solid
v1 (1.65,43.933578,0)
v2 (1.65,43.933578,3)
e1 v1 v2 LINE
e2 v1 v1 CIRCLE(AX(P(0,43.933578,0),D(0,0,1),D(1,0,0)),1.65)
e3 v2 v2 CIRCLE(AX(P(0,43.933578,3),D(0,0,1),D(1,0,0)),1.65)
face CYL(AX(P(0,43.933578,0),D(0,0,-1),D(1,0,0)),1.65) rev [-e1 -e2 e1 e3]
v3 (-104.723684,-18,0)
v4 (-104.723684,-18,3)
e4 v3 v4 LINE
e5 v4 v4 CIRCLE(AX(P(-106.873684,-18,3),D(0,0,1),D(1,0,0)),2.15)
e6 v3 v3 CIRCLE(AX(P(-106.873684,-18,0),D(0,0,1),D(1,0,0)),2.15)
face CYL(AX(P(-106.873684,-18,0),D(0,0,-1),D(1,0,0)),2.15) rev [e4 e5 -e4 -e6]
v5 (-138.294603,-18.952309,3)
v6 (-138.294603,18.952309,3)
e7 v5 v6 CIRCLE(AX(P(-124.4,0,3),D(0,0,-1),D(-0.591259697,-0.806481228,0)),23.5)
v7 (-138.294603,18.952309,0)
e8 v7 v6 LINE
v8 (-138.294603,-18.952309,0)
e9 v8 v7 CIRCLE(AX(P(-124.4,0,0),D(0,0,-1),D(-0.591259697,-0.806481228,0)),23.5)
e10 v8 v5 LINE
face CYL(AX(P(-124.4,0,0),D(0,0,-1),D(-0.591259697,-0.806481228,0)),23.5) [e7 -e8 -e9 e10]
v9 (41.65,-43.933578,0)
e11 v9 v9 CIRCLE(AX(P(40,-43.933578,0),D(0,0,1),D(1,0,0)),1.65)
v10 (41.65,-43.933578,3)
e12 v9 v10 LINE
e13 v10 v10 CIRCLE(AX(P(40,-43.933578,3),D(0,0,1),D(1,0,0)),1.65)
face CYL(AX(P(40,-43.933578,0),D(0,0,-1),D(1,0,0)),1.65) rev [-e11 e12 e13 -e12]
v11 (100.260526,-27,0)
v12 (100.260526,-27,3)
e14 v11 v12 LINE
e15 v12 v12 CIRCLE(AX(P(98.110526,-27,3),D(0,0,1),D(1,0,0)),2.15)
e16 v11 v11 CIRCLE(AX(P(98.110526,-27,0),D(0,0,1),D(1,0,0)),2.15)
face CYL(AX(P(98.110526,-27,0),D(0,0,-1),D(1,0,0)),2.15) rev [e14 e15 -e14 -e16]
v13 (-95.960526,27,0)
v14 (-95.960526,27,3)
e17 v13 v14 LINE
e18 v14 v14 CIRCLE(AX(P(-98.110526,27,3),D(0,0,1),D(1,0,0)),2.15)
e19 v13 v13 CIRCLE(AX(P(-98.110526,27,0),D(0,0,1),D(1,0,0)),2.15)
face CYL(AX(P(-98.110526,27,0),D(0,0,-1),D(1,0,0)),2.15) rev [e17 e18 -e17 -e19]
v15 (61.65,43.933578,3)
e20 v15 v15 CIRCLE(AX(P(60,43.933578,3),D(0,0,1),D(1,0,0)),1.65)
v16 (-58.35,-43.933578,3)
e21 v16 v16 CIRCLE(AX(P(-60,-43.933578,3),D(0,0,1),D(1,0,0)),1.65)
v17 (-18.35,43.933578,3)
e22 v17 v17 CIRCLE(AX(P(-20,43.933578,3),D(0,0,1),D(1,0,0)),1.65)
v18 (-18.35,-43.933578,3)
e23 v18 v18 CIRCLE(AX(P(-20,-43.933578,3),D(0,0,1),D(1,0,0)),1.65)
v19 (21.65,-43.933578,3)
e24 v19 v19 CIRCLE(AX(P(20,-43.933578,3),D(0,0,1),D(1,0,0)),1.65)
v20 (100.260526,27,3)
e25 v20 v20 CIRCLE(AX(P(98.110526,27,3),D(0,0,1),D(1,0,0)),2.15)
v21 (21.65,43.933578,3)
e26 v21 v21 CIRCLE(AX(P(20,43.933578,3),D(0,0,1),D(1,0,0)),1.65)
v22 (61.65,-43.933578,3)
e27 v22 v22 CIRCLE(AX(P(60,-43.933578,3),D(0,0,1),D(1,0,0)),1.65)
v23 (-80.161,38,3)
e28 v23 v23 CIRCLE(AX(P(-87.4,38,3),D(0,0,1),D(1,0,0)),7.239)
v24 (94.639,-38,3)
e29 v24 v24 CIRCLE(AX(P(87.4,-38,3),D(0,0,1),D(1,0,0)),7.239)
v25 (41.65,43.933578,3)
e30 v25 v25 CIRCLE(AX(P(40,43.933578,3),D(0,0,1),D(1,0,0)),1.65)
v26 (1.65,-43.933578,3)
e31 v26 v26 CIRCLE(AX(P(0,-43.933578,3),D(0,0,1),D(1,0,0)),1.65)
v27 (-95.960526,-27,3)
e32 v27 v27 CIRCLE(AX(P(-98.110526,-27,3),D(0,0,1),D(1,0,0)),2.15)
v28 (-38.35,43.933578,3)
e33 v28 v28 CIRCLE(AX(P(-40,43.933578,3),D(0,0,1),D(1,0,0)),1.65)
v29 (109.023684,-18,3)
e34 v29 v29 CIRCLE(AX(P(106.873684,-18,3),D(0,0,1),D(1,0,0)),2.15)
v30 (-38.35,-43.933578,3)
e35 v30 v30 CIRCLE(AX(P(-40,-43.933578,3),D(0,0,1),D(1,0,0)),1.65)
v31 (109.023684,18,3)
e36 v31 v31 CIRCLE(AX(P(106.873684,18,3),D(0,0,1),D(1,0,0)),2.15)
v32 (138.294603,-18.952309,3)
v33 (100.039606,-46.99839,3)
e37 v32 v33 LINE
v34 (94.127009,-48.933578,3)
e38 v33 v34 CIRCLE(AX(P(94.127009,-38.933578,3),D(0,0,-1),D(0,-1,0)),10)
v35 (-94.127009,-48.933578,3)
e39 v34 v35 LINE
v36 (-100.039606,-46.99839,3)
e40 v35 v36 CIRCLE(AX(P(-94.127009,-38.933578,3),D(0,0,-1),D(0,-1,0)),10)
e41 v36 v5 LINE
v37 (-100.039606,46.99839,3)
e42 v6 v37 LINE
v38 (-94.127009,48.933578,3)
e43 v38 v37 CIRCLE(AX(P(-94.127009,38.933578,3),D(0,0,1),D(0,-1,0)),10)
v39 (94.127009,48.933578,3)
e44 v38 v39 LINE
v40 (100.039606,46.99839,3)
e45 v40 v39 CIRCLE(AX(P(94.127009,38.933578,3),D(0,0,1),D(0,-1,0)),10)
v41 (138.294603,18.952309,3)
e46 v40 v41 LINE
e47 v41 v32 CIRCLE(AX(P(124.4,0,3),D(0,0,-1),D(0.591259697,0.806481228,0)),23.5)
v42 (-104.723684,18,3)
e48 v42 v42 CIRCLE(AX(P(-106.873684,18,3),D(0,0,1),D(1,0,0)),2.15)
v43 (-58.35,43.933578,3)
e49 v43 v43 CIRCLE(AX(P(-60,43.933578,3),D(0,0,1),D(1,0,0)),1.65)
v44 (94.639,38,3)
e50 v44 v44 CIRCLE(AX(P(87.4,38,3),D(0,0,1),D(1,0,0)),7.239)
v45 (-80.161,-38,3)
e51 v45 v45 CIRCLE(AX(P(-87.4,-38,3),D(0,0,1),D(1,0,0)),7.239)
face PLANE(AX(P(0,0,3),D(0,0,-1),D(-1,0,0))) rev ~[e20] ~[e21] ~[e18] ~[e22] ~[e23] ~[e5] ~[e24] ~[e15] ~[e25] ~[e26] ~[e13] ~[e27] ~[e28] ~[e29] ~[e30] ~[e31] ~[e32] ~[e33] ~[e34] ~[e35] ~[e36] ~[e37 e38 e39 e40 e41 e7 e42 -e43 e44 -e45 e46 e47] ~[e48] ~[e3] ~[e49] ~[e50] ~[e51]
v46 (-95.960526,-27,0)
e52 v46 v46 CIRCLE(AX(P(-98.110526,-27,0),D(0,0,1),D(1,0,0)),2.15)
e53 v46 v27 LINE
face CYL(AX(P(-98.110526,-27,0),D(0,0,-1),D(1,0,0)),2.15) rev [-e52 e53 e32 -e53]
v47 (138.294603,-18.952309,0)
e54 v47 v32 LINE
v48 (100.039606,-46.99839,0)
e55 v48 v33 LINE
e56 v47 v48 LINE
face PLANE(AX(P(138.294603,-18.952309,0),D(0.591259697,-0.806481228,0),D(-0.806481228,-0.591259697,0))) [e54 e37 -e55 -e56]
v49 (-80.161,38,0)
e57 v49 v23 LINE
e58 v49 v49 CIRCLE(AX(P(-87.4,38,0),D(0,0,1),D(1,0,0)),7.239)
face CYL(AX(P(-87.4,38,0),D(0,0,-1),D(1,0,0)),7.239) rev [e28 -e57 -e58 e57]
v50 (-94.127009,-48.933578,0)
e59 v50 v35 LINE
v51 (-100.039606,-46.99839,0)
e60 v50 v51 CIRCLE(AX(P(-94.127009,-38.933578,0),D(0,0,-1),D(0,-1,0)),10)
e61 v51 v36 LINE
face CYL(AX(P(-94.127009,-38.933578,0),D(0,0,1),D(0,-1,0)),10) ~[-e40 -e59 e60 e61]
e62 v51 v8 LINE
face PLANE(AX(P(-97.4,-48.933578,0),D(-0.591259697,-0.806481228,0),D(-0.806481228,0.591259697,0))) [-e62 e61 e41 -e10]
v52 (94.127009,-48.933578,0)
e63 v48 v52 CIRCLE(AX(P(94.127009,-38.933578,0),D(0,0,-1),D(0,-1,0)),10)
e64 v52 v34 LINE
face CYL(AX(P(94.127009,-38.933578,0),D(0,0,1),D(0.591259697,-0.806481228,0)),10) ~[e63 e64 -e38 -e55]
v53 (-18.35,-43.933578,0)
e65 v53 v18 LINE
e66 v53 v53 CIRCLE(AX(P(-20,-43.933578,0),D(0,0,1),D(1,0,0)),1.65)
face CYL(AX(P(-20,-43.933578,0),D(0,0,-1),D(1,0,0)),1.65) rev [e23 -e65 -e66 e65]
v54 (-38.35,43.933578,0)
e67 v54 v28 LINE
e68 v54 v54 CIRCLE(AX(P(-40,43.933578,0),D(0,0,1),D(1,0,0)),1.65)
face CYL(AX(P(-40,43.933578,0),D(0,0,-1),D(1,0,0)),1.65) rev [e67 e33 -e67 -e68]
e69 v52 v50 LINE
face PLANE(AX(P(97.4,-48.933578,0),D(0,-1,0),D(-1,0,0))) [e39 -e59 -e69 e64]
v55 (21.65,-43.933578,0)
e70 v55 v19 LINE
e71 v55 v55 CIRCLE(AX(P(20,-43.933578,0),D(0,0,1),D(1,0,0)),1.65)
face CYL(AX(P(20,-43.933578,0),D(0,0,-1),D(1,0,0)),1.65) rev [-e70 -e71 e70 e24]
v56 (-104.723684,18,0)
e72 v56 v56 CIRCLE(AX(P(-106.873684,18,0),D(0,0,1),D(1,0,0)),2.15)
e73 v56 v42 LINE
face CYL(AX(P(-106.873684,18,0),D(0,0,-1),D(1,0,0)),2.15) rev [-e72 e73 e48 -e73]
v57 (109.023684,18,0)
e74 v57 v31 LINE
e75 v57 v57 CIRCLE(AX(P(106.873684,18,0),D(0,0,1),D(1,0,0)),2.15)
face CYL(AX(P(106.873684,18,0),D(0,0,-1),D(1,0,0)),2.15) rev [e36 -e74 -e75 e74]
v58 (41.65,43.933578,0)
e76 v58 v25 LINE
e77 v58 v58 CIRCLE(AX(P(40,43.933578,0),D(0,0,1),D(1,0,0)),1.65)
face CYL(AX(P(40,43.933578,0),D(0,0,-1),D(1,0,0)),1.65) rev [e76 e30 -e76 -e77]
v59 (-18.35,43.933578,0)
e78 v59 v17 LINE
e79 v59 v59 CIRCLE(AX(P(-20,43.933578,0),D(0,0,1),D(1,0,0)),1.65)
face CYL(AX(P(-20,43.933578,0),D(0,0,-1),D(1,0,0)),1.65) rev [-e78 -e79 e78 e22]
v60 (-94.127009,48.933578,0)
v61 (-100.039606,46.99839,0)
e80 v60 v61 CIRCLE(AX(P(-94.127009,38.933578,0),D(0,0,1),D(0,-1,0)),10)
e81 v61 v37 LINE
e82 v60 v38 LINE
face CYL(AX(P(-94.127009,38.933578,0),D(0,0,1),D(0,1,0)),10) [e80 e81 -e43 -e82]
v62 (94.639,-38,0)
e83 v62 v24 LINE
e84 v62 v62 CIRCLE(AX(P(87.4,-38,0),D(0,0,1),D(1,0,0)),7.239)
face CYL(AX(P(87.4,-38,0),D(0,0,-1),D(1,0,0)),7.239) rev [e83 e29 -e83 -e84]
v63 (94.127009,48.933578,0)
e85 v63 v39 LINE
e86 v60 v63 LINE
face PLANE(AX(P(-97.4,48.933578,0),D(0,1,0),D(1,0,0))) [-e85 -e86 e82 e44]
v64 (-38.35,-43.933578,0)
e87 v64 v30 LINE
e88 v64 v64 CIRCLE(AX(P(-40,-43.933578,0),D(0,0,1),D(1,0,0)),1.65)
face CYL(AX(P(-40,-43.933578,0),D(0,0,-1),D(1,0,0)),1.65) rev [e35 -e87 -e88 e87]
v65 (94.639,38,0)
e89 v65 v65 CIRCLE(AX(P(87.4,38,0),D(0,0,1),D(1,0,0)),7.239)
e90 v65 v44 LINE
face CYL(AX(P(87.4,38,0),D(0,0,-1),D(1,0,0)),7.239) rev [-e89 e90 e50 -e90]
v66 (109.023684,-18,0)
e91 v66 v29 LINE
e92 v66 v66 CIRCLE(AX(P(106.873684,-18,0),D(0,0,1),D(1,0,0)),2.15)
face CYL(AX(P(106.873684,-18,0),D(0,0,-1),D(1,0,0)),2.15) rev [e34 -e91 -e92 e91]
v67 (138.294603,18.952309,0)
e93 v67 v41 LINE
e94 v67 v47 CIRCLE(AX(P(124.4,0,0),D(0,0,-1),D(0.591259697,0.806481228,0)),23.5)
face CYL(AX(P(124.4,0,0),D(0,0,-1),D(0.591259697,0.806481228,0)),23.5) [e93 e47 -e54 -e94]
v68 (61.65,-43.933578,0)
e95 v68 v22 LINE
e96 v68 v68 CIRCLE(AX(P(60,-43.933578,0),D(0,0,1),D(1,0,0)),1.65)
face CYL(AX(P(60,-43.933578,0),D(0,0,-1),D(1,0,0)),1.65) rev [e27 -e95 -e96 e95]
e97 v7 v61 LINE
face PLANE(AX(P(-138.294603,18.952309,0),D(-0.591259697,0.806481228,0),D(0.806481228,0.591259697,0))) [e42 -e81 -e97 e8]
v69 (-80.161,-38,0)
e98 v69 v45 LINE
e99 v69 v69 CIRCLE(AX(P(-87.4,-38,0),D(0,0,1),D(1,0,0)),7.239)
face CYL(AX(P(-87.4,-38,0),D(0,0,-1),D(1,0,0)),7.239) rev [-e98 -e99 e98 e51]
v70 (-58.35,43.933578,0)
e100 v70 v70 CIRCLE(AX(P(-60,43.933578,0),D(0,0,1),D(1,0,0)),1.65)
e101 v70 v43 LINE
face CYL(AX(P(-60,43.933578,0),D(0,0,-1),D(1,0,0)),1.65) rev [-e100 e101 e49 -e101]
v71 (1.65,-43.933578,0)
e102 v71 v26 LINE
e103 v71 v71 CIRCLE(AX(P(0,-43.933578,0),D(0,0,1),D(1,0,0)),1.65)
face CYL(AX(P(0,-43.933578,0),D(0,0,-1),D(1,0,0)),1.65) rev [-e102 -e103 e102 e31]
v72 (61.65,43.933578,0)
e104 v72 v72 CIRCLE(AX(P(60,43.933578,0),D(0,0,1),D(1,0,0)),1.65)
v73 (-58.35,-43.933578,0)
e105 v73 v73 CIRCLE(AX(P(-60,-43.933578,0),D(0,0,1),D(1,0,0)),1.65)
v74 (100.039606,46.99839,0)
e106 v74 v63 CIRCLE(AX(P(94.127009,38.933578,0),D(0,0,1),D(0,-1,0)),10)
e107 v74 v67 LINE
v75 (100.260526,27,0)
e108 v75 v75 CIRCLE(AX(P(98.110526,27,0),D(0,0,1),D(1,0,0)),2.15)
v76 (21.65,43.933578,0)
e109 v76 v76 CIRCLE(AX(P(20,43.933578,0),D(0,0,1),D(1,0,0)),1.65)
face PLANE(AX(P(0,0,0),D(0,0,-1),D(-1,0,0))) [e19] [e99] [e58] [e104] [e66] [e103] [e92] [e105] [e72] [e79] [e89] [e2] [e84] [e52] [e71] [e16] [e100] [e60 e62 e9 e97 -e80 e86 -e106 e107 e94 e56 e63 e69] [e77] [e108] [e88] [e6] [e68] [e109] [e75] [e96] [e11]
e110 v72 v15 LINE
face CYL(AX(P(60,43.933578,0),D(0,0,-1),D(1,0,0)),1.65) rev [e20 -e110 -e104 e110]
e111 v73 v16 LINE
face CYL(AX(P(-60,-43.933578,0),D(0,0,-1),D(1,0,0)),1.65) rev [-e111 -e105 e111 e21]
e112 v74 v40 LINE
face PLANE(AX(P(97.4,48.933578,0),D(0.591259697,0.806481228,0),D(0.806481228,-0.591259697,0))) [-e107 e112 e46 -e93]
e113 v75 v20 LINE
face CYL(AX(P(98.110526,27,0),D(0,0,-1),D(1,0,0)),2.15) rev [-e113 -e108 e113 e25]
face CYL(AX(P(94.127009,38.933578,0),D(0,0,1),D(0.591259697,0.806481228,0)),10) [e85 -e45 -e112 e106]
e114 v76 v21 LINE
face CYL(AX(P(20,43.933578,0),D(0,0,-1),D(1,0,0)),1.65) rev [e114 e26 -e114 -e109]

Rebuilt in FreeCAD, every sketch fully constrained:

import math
import FreeCAD as App
import Part
import Sketcher
Q = App.Units.Quantity


def edges_at(feature, points):
    """Names of the edges that pass closest to the given points."""
    edges = feature.Shape.Edges
    near = lambda p: min(range(len(edges)), key=lambda i: edges[i].distToShape(Part.Vertex(*p))[0])
    return sorted({f"Edge{near(p) + 1}" for p in points})

doc = App.newDocument("Part")
params = doc.addObject("Spreadsheet::Sheet", "Params")
for row, (alias, value) in enumerate([
    ("sketch1_diameter", "3.3 mm"),
    ("sketch1_diameter2", "4.3 mm"),
    ("sketch1_radius", "23.5 mm"),
    ("sketch1_width", "194.8 mm"),
    ("pad1_length", "3 mm"),
    ("fillet_radius", "10 mm"),
], start=1):
    params.set(f"A{row}", alias)
    params.set(f"B{row}", "=" + value)
    params.setAlias(f"B{row}", alias)

body = doc.addObject("PartDesign::Body", "Body")

# Sketch on XY plane
sketch1 = body.newObject("Sketcher::SketchObject", "Sketch")
sketch1.AttachmentSupport = (doc.getObject("XY_Plane"), [""])
sketch1.MapMode = "FlatFace"
sketch1.addGeometry(Part.LineSegment(App.Vector(138.294603, 18.952309, 0), App.Vector(97.4, 48.933578, 0)), False)
sketch1.addGeometry(Part.LineSegment(App.Vector(97.4, 48.933578, 0), App.Vector(-97.4, 48.933578, 0)), False)
sketch1.addGeometry(Part.LineSegment(App.Vector(-97.4, 48.933578, 0), App.Vector(-138.294603, 18.952309, 0)), False)
sketch1.addGeometry(Part.ArcOfCircle(Part.Circle(App.Vector(-124.4, 0, 0), App.Vector(0, 0, 1), 23.5), math.radians(126.246451), math.radians(233.753549)), False)
sketch1.addGeometry(Part.LineSegment(App.Vector(-138.294603, -18.952309, 0), App.Vector(-97.4, -48.933578, 0)), False)
sketch1.addGeometry(Part.LineSegment(App.Vector(-97.4, -48.933578, 0), App.Vector(97.4, -48.933578, 0)), False)
sketch1.addGeometry(Part.LineSegment(App.Vector(97.4, -48.933578, 0), App.Vector(138.294603, -18.952309, 0)), False)
sketch1.addGeometry(Part.ArcOfCircle(Part.Circle(App.Vector(124.4, 0, 0), App.Vector(0, 0, 1), 23.5), math.radians(-53.753549), math.radians(53.753549)), False)
sketch1.addGeometry(Part.Circle(App.Vector(87.4, -38, 0), App.Vector(0, 0, 1), 7.239), False)
sketch1.addGeometry(Part.Circle(App.Vector(60, -43.933578, 0), App.Vector(0, 0, 1), 1.65), False)
sketch1.addGeometry(Part.Circle(App.Vector(98.110526, -27, 0), App.Vector(0, 0, 1), 2.15), False)
sketch1.addGeometry(Part.Circle(App.Vector(40, -43.933578, 0), App.Vector(0, 0, 1), 1.65), False)
sketch1.addGeometry(Part.Circle(App.Vector(20, -43.933578, 0), App.Vector(0, 0, 1), 1.65), False)
sketch1.addGeometry(Part.Circle(App.Vector(106.873684, -18, 0), App.Vector(0, 0, 1), 2.15), False)
sketch1.addGeometry(Part.Circle(App.Vector(0, -43.933578, 0), App.Vector(0, 0, 1), 1.65), False)
sketch1.addGeometry(Part.Circle(App.Vector(-20, -43.933578, 0), App.Vector(0, 0, 1), 1.65), False)
sketch1.addGeometry(Part.Circle(App.Vector(-40, -43.933578, 0), App.Vector(0, 0, 1), 1.65), False)
sketch1.addGeometry(Part.Circle(App.Vector(-60, -43.933578, 0), App.Vector(0, 0, 1), 1.65), False)
sketch1.addGeometry(Part.Circle(App.Vector(-87.4, -38, 0), App.Vector(0, 0, 1), 7.239), False)
sketch1.addGeometry(Part.Circle(App.Vector(-98.110526, -27, 0), App.Vector(0, 0, 1), 2.15), False)
sketch1.addGeometry(Part.Circle(App.Vector(-106.873684, -18, 0), App.Vector(0, 0, 1), 2.15), False)
sketch1.addGeometry(Part.Circle(App.Vector(106.873684, 18, 0), App.Vector(0, 0, 1), 2.15), False)
sketch1.addGeometry(Part.Circle(App.Vector(98.110526, 27, 0), App.Vector(0, 0, 1), 2.15), False)
sketch1.addGeometry(Part.Circle(App.Vector(87.4, 38, 0), App.Vector(0, 0, 1), 7.239), False)
sketch1.addGeometry(Part.Circle(App.Vector(60, 43.933578, 0), App.Vector(0, 0, 1), 1.65), False)
sketch1.addGeometry(Part.Circle(App.Vector(40, 43.933578, 0), App.Vector(0, 0, 1), 1.65), False)
sketch1.addGeometry(Part.Circle(App.Vector(20, 43.933578, 0), App.Vector(0, 0, 1), 1.65), False)
sketch1.addGeometry(Part.Circle(App.Vector(-106.873684, 18, 0), App.Vector(0, 0, 1), 2.15), False)
sketch1.addGeometry(Part.Circle(App.Vector(0, 43.933578, 0), App.Vector(0, 0, 1), 1.65), False)
sketch1.addGeometry(Part.Circle(App.Vector(-20, 43.933578, 0), App.Vector(0, 0, 1), 1.65), False)
sketch1.addGeometry(Part.Circle(App.Vector(-40, 43.933578, 0), App.Vector(0, 0, 1), 1.65), False)
sketch1.addGeometry(Part.Circle(App.Vector(-98.110526, 27, 0), App.Vector(0, 0, 1), 2.15), False)
sketch1.addGeometry(Part.Circle(App.Vector(-60, 43.933578, 0), App.Vector(0, 0, 1), 1.65), False)
sketch1.addGeometry(Part.Circle(App.Vector(-87.4, 38, 0), App.Vector(0, 0, 1), 7.239), False)
sketch1.addConstraint(Sketcher.Constraint("Coincident", 0, 2, 1, 1))
sketch1.addConstraint(Sketcher.Constraint("Coincident", 1, 2, 2, 1))
sketch1.addConstraint(Sketcher.Constraint("Tangent", 2, 2, 3, 1))
sketch1.addConstraint(Sketcher.Constraint("Tangent", 3, 2, 4, 1))
sketch1.addConstraint(Sketcher.Constraint("Coincident", 4, 2, 5, 1))
sketch1.addConstraint(Sketcher.Constraint("Coincident", 5, 2, 6, 1))
sketch1.addConstraint(Sketcher.Constraint("Tangent", 6, 2, 7, 1))
sketch1.addConstraint(Sketcher.Constraint("Tangent", 7, 2, 0, 1))
sketch1.addConstraint(Sketcher.Constraint("Horizontal", 1))
sketch1.addConstraint(Sketcher.Constraint("Horizontal", 5))
sketch1.addConstraint(Sketcher.Constraint("Equal", 3, 7))
sketch1.addConstraint(Sketcher.Constraint("Equal", 9, 11))
sketch1.addConstraint(Sketcher.Constraint("Equal", 11, 12))
sketch1.addConstraint(Sketcher.Constraint("Equal", 10, 13))
sketch1.addConstraint(Sketcher.Constraint("Equal", 12, 14))
sketch1.addConstraint(Sketcher.Constraint("Equal", 14, 15))
sketch1.addConstraint(Sketcher.Constraint("Equal", 15, 16))
sketch1.addConstraint(Sketcher.Constraint("Equal", 16, 17))
sketch1.addConstraint(Sketcher.Constraint("Equal", 8, 18))
sketch1.addConstraint(Sketcher.Constraint("Equal", 13, 19))
sketch1.addConstraint(Sketcher.Constraint("Equal", 19, 20))
sketch1.addConstraint(Sketcher.Constraint("Equal", 20, 21))
sketch1.addConstraint(Sketcher.Constraint("Equal", 21, 22))
sketch1.addConstraint(Sketcher.Constraint("Equal", 18, 23))
sketch1.addConstraint(Sketcher.Constraint("Equal", 17, 24))
sketch1.addConstraint(Sketcher.Constraint("Equal", 24, 25))
sketch1.addConstraint(Sketcher.Constraint("Equal", 25, 26))
sketch1.addConstraint(Sketcher.Constraint("Equal", 22, 27))
sketch1.addConstraint(Sketcher.Constraint("Equal", 26, 28))
sketch1.addConstraint(Sketcher.Constraint("Equal", 28, 29))
sketch1.addConstraint(Sketcher.Constraint("Equal", 29, 30))
sketch1.addConstraint(Sketcher.Constraint("Equal", 27, 31))
sketch1.addConstraint(Sketcher.Constraint("Equal", 30, 32))
sketch1.addConstraint(Sketcher.Constraint("Equal", 23, 33))
sketch1.addConstraint(Sketcher.Constraint("Symmetric", 3, 3, 7, 3, -1, 1))
sketch1.addConstraint(Sketcher.Constraint("Symmetric", 20, 3, 21, 3, -1, 1))
sketch1.addConstraint(Sketcher.Constraint("Symmetric", 19, 3, 22, 3, -1, 1))
sketch1.addConstraint(Sketcher.Constraint("Symmetric", 18, 3, 23, 3, -1, 1))
sketch1.addConstraint(Sketcher.Constraint("Symmetric", 17, 3, 24, 3, -1, 1))
sketch1.addConstraint(Sketcher.Constraint("Symmetric", 16, 3, 25, 3, -1, 1))
sketch1.addConstraint(Sketcher.Constraint("Symmetric", 15, 3, 26, 3, -1, 1))
sketch1.addConstraint(Sketcher.Constraint("Symmetric", 13, 3, 27, 3, -1, 1))
sketch1.addConstraint(Sketcher.Constraint("Symmetric", 14, 3, 28, 3, -1, 1))
sketch1.addConstraint(Sketcher.Constraint("Symmetric", 12, 3, 29, 3, -1, 1))
sketch1.addConstraint(Sketcher.Constraint("Symmetric", 11, 3, 30, 3, -1, 1))
sketch1.addConstraint(Sketcher.Constraint("Symmetric", 10, 3, 31, 3, -1, 1))
sketch1.addConstraint(Sketcher.Constraint("Symmetric", 9, 3, 32, 3, -1, 1))
sketch1.addConstraint(Sketcher.Constraint("Symmetric", 8, 3, 33, 3, -1, 1))
sketch1.addConstraint(Sketcher.Constraint("Symmetric", 0, 2, 4, 2, -1, 1))
sketch1.addConstraint(Sketcher.Constraint("Symmetric", 12, 3, 15, 3, -2))
sketch1.addConstraint(Sketcher.Constraint("Symmetric", 11, 3, 16, 3, -2))
sketch1.addConstraint(Sketcher.Constraint("Symmetric", 9, 3, 17, 3, -2))
sketch1.addConstraint(Sketcher.Constraint("Symmetric", 8, 3, 18, 3, -2))
sketch1.addConstraint(Sketcher.Constraint("Symmetric", 10, 3, 19, 3, -2))
sketch1.addConstraint(Sketcher.Constraint("Symmetric", 13, 3, 20, 3, -2))
sketch1.addConstraint(Sketcher.Constraint("Symmetric", 3, 2, 6, 2, -2))
sketch1.addConstraint(Sketcher.Constraint("PointOnObject", 14, 3, -2))
sketch1.addConstraint(Sketcher.Constraint("Parallel", 2, 6))
sketch1.addConstraint(Sketcher.Constraint("Horizontal", 9, 3, 11, 3))
sketch1.addConstraint(Sketcher.Constraint("Horizontal", 11, 3, 12, 3))
sketch1.addConstraint(Sketcher.Constraint("Horizontal", 12, 3, 14, 3))
sketch1.addConstraint(Sketcher.Constraint("Diameter", 9, Q("3.3 mm")))
sketch1.addConstraint(Sketcher.Constraint("Diameter", 10, Q("4.3 mm")))
sketch1.addConstraint(Sketcher.Constraint("Radius", 3, Q("23.5 mm")))
sketch1.addConstraint(Sketcher.Constraint("Diameter", 8, Q("14.478 mm")))
sketch1.addConstraint(Sketcher.Constraint("DistanceX", 1, 2, 1, 1, Q("194.8 mm")))
sketch1.addConstraint(Sketcher.Constraint("DistanceY", 8, 3, -1, 1, Q("38 mm")))
sketch1.addConstraint(Sketcher.Constraint("DistanceX", -1, 1, 9, 3, Q("60 mm")))
sketch1.addConstraint(Sketcher.Constraint("DistanceY", 10, 3, -1, 1, Q("27 mm")))
sketch1.addConstraint(Sketcher.Constraint("DistanceX", -1, 1, 11, 3, Q("40 mm")))
sketch1.addConstraint(Sketcher.Constraint("DistanceX", -1, 1, 12, 3, Q("20 mm")))
sketch1.addConstraint(Sketcher.Constraint("DistanceY", 13, 3, -1, 1, Q("18 mm")))
sketch1.addConstraint(Sketcher.Constraint("DistanceX", 8, 3, 7, 3, Q("37 mm")))
sketch1.addConstraint(Sketcher.Constraint("DistanceX", 23, 3, 0, 2, Q("10 mm")))
sketch1.addConstraint(Sketcher.Constraint("DistanceY", 24, 3, 0, 2, Q("5 mm")))
sketch1.addConstraint(Sketcher.Constraint("DistanceY", -1, 1, 2, 2, Q("18.952309 mm")))
sketch1.addConstraint(Sketcher.Constraint("DistanceX", 2, 2, 27, 3, Q("31.420919 mm")))
sketch1.addConstraint(Sketcher.Constraint("DistanceX", -1, 1, 10, 3, Q("98.110526 mm")))
sketch1.setExpression("Constraints[61]", "Params.sketch1_diameter")
sketch1.setExpression("Constraints[62]", "Params.sketch1_diameter2")
sketch1.setExpression("Constraints[63]", "Params.sketch1_radius")
sketch1.setExpression("Constraints[65]", "Params.sketch1_width")
pad1 = body.newObject("PartDesign::Pad", "Pad")
pad1.Profile = sketch1
pad1.setExpression("Length", "Params.pad1_length")
doc.recompute()

fillet = body.newObject("PartDesign::Fillet", "Fillet")
fillet.Base = (pad1, edges_at(pad1, [
    (-97.4, 48.934, 1.5),
    (97.4, 48.934, 1.5),
    (97.4, -48.934, 1.5),
    (-97.4, -48.934, 1.5),
]))
fillet.setExpression("Radius", "Params.fillet_radius")

doc.recompute()
